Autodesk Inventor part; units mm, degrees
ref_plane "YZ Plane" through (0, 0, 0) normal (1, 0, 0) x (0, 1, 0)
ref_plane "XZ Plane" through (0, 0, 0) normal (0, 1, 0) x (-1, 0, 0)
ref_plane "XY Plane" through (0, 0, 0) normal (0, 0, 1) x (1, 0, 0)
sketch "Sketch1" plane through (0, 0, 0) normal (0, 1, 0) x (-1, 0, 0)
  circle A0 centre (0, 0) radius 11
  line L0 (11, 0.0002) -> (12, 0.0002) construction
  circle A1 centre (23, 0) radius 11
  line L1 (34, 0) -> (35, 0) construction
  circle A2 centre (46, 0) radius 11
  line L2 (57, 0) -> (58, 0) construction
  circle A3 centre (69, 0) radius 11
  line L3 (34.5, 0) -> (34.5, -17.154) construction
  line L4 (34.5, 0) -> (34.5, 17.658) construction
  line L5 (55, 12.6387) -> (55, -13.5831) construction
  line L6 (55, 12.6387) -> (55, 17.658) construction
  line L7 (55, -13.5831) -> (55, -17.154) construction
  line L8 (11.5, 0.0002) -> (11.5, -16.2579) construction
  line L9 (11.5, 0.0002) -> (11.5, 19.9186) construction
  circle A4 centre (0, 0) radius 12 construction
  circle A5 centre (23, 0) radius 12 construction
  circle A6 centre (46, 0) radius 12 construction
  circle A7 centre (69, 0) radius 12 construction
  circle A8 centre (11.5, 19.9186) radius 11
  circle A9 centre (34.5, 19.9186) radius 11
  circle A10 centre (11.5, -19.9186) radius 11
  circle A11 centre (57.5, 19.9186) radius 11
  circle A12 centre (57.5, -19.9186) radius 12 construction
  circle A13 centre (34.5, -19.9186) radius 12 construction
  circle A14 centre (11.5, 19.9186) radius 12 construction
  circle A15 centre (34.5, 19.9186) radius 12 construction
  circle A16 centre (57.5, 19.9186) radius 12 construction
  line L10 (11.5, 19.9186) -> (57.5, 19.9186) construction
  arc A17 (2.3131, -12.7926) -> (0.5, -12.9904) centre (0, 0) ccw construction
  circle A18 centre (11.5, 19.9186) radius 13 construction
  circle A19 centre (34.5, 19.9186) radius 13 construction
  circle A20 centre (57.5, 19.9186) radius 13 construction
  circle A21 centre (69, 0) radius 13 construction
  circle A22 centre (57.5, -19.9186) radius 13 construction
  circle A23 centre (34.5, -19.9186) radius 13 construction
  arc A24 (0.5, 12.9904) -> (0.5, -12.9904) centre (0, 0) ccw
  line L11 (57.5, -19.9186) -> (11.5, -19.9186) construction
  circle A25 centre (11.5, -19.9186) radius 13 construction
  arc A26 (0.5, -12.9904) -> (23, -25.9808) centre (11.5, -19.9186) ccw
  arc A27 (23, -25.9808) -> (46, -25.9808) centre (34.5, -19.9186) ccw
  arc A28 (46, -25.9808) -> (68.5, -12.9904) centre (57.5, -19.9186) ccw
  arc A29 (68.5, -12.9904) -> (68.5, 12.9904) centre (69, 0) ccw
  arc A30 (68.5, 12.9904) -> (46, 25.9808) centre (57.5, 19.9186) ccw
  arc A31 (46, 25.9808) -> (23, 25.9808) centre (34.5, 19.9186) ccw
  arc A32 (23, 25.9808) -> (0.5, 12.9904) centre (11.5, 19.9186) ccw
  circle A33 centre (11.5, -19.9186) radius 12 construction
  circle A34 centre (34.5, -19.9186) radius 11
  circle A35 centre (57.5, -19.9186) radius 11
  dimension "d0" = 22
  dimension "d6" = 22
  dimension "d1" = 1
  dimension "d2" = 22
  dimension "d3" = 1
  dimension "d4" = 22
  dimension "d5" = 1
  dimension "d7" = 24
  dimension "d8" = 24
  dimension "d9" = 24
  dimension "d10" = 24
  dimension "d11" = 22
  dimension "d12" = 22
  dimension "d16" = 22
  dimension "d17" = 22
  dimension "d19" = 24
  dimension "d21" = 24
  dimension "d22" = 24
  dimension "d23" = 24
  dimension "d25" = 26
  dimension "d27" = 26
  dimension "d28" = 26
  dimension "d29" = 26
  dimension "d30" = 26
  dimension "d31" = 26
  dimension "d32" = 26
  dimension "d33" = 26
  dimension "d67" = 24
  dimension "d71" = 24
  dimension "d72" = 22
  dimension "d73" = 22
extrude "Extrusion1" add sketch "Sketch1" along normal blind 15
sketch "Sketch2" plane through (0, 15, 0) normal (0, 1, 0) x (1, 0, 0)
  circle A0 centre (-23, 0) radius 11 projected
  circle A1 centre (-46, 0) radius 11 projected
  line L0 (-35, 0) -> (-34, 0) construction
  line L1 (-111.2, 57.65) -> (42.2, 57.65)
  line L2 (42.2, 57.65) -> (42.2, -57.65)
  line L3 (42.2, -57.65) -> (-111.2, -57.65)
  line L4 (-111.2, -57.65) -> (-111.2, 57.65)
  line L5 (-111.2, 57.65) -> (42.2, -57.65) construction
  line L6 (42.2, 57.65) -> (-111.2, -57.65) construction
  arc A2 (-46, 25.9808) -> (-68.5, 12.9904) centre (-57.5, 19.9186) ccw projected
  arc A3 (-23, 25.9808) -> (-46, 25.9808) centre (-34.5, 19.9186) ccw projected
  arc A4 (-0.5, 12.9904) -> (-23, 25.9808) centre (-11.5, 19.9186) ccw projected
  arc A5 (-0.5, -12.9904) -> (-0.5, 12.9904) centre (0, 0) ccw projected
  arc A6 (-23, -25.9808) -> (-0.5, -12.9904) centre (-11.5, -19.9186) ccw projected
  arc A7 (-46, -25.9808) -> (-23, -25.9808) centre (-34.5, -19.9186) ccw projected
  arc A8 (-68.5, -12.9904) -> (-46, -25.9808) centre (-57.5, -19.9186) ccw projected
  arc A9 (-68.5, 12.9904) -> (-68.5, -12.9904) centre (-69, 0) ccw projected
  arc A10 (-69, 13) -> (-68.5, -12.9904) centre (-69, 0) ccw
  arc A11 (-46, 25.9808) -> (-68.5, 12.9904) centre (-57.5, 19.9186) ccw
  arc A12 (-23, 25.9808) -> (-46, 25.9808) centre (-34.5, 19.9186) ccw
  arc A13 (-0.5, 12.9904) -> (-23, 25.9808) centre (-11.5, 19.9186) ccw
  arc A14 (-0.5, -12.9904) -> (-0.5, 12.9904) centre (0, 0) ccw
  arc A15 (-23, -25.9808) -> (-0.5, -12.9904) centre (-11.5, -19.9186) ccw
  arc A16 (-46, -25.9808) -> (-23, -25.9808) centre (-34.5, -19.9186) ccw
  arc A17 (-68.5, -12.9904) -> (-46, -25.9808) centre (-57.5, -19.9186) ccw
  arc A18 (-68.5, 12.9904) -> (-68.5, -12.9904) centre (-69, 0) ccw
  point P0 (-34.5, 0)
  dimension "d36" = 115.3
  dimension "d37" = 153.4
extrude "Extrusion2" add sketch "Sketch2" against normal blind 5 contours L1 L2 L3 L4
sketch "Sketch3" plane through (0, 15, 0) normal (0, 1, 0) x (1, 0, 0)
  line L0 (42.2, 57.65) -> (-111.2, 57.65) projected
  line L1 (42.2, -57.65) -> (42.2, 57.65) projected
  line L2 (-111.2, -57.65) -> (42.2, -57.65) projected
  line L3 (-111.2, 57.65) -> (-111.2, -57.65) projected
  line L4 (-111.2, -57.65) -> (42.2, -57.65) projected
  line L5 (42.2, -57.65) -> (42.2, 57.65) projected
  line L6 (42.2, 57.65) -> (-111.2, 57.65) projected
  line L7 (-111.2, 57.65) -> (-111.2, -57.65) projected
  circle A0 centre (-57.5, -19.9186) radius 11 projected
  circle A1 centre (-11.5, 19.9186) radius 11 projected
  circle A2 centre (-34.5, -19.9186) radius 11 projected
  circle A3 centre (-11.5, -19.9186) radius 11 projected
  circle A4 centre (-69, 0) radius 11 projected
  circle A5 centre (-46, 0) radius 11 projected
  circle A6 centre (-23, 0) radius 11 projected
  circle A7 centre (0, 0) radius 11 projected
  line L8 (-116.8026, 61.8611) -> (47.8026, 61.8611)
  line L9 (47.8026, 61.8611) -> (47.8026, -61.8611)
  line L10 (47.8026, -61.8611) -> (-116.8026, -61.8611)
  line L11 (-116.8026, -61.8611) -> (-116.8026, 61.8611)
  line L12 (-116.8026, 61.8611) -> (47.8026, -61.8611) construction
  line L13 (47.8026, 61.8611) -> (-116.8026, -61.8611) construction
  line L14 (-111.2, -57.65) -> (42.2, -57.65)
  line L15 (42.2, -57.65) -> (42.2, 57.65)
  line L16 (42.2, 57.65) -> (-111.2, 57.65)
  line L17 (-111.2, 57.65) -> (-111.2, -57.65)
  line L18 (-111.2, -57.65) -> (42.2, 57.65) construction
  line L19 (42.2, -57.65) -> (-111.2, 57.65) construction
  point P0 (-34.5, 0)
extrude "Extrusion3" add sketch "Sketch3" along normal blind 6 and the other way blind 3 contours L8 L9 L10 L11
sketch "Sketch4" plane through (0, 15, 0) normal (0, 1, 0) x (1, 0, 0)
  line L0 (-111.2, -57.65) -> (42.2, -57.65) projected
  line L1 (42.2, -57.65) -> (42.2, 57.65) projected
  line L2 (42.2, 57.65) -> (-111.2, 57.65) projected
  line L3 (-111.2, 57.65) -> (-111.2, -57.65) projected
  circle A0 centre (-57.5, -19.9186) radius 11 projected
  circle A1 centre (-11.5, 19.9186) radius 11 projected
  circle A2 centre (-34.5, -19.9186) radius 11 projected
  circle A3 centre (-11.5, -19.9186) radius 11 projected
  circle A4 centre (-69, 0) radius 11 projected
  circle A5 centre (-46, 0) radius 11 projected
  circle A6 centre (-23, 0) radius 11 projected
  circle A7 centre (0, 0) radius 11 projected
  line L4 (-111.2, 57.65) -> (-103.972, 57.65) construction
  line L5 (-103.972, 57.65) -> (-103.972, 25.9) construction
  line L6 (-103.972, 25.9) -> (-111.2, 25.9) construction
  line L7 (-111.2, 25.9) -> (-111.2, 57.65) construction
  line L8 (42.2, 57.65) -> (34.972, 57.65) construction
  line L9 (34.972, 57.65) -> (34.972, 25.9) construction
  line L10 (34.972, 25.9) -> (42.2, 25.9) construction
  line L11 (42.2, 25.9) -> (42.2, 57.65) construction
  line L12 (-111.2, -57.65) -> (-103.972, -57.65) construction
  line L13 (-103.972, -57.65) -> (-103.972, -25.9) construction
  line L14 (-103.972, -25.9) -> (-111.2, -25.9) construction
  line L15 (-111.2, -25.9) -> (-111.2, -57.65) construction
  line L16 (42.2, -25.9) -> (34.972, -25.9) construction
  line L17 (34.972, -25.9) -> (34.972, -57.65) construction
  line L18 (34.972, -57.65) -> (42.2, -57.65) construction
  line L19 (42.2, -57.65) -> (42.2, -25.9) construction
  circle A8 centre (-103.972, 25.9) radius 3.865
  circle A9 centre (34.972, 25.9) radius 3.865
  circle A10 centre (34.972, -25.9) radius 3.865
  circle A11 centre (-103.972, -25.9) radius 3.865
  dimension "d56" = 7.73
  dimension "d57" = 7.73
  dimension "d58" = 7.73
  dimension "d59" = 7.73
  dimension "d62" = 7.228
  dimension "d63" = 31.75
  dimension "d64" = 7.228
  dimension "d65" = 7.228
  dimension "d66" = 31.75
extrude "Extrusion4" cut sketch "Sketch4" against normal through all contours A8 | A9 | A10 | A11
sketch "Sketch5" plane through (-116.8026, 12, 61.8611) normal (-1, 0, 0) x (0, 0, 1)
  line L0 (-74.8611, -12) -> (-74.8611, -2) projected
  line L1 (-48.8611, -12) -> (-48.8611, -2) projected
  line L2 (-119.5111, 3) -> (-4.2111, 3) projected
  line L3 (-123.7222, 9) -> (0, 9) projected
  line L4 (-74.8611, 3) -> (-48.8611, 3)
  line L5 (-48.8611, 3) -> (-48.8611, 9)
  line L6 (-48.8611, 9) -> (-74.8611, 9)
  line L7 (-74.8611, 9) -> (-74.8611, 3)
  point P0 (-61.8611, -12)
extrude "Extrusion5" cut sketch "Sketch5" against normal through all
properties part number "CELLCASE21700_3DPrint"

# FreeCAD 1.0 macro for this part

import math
import FreeCAD as App
import Part
import Sketcher

V = App.Vector
Q = App.Units.Quantity


def add_polygon(sketch, points):
    """Adds a closed chain of lines whose ends are joined by coincident constraints."""
    first, n = sketch.GeometryCount, len(points)
    for a, b in zip(points, points[1:] + points[:1]):
        sketch.addGeometry(Part.LineSegment(App.Vector(*a, 0), App.Vector(*b, 0)), False)
    for i in range(n):
        sketch.addConstraint(Sketcher.Constraint("Coincident", first + i, 2, first + (i + 1) % n, 1))

doc = App.newDocument("Part")
body = doc.addObject("PartDesign::Body", "Body")

# Sketch on XZ plane
sketch1 = body.newObject("Sketcher::SketchObject", "Sketch")
sketch1.AttachmentSupport = (doc.getObject("XZ_Plane"), [""])
sketch1.MapMode = "FlatFace"
sketch1.addGeometry(Part.ArcOfCircle(Part.Circle(V(-12, 20, 0), V(0, 0, 1), 13), math.radians(-32), math.radians(152)), False)
sketch1.addGeometry(Part.ArcOfCircle(Part.Circle(V(0, 0, 0), V(0, 0, 1), 13), math.radians(-92), math.radians(92)), False)
sketch1.addGeometry(Part.ArcOfCircle(Part.Circle(V(-12, -20, 0), V(0, 0, 1), 13), math.radians(-152), math.radians(32)), False)
sketch1.addGeometry(Part.ArcOfCircle(Part.Circle(V(-34, -20, 0), V(0, 0, 1), 13), math.radians(-152), math.radians(-28)), False)
sketch1.addGeometry(Part.ArcOfCircle(Part.Circle(V(-58, -20, 0), V(0, 0, 1), 13), math.radians(148), math.radians(332)), False)
sketch1.addGeometry(Part.ArcOfCircle(Part.Circle(V(-69, 0, 0), V(0, 0, 1), 13), math.radians(88), math.radians(272)), False)
sketch1.addGeometry(Part.ArcOfCircle(Part.Circle(V(-58, 20, 0), V(0, 0, 1), 13), math.radians(28), math.radians(212)), False)
sketch1.addGeometry(Part.ArcOfCircle(Part.Circle(V(-34, 20, 0), V(0, 0, 1), 13), math.radians(28), math.radians(152)), False)
sketch1.addGeometry(Part.Circle(V(-12, -20, 0), V(0, 0, 1), 11), False)
sketch1.addGeometry(Part.Circle(V(-34, -20, 0), V(0, 0, 1), 11), False)
sketch1.addGeometry(Part.Circle(V(-58, -20, 0), V(0, 0, 1), 11), False)
sketch1.addGeometry(Part.Circle(V(0, 0, 0), V(0, 0, 1), 11), False)
sketch1.addGeometry(Part.Circle(V(-23, 0, 0), V(0, 0, 1), 11), False)
sketch1.addGeometry(Part.Circle(V(-12, 20, 0), V(0, 0, 1), 11), False)
sketch1.addGeometry(Part.Circle(V(-34, 20, 0), V(0, 0, 1), 11), False)
sketch1.addGeometry(Part.Circle(V(-46, 0, 0), V(0, 0, 1), 11), False)
sketch1.addGeometry(Part.Circle(V(-69, 0, 0), V(0, 0, 1), 11), False)
sketch1.addGeometry(Part.Circle(V(-58, 20, 0), V(0, 0, 1), 11), False)
sketch1.addConstraint(Sketcher.Constraint("Coincident", 0, 1, 1, 2))
sketch1.addConstraint(Sketcher.Constraint("Coincident", 1, 1, 2, 2))
sketch1.addConstraint(Sketcher.Constraint("Coincident", 2, 1, 3, 2))
sketch1.addConstraint(Sketcher.Constraint("Coincident", 3, 1, 4, 2))
sketch1.addConstraint(Sketcher.Constraint("Coincident", 4, 1, 5, 2))
sketch1.addConstraint(Sketcher.Constraint("Coincident", 5, 1, 6, 2))
sketch1.addConstraint(Sketcher.Constraint("Coincident", 6, 1, 7, 2))
sketch1.addConstraint(Sketcher.Constraint("Coincident", 7, 1, 0, 2))
sketch1.addConstraint(Sketcher.Constraint("Coincident", 1, 3, -1, 1))
sketch1.addConstraint(Sketcher.Constraint("Coincident", 11, 3, -1, 1))
sketch1.addConstraint(Sketcher.Constraint("Coincident", 8, 3, 2, 3))
sketch1.addConstraint(Sketcher.Constraint("Coincident", 9, 3, 3, 3))
sketch1.addConstraint(Sketcher.Constraint("Coincident", 10, 3, 4, 3))
sketch1.addConstraint(Sketcher.Constraint("Coincident", 13, 3, 0, 3))
sketch1.addConstraint(Sketcher.Constraint("Coincident", 14, 3, 7, 3))
sketch1.addConstraint(Sketcher.Constraint("Coincident", 16, 3, 5, 3))
sketch1.addConstraint(Sketcher.Constraint("Coincident", 17, 3, 6, 3))
sketch1.addConstraint(Sketcher.Constraint("Equal", 0, 1))
sketch1.addConstraint(Sketcher.Constraint("Equal", 1, 2))
sketch1.addConstraint(Sketcher.Constraint("Equal", 2, 3))
sketch1.addConstraint(Sketcher.Constraint("Equal", 3, 4))
sketch1.addConstraint(Sketcher.Constraint("Equal", 4, 5))
sketch1.addConstraint(Sketcher.Constraint("Equal", 5, 6))
sketch1.addConstraint(Sketcher.Constraint("Equal", 6, 7))
sketch1.addConstraint(Sketcher.Constraint("Equal", 8, 9))
sketch1.addConstraint(Sketcher.Constraint("Equal", 9, 10))
sketch1.addConstraint(Sketcher.Constraint("Equal", 10, 11))
sketch1.addConstraint(Sketcher.Constraint("Equal", 11, 12))
sketch1.addConstraint(Sketcher.Constraint("Equal", 12, 13))
sketch1.addConstraint(Sketcher.Constraint("Equal", 13, 14))
sketch1.addConstraint(Sketcher.Constraint("Equal", 14, 15))
sketch1.addConstraint(Sketcher.Constraint("Equal", 15, 16))
sketch1.addConstraint(Sketcher.Constraint("Equal", 16, 17))
sketch1.addConstraint(Sketcher.Constraint("Symmetric", 0, 3, 2, 3, -1))
sketch1.addConstraint(Sketcher.Constraint("Symmetric", 4, 3, 6, 3, -1))
sketch1.addConstraint(Sketcher.Constraint("Symmetric", 3, 3, 7, 3, -1))
sketch1.addConstraint(Sketcher.Constraint("PointOnObject", 5, 3, -1))
sketch1.addConstraint(Sketcher.Constraint("PointOnObject", 12, 3, -1))
sketch1.addConstraint(Sketcher.Constraint("PointOnObject", 15, 3, -1))
sketch1.addConstraint(Sketcher.Constraint("Horizontal", 2, 3, 3, 3))
sketch1.addConstraint(Sketcher.Constraint("Horizontal", 3, 3, 4, 3))
sketch1.addConstraint(Sketcher.Constraint("Horizontal", 2, 1, 3, 1))
sketch1.addConstraint(Sketcher.Constraint("Horizontal", 1, 1, 4, 1))
sketch1.addConstraint(Sketcher.Constraint("Vertical", 12, 3, 2, 1))
sketch1.addConstraint(Sketcher.Constraint("Vertical", 15, 3, 3, 1))
sketch1.addConstraint(Sketcher.Constraint("Diameter", 8, Q("22 mm")))
sketch1.addConstraint(Sketcher.Constraint("Radius", 0, Q("13 mm")))
sketch1.addConstraint(Sketcher.Constraint("DistanceX", 5, 3, -1, 1, Q("69 mm")))
sketch1.addConstraint(Sketcher.Constraint("DistanceX", 12, 3, -1, 1, Q("23 mm")))
sketch1.addConstraint(Sketcher.Constraint("DistanceX", 0, 3, 0, 1, Q("11 mm")))
pad1 = body.newObject("PartDesign::Pad", "Pad")
pad1.Profile = sketch1
pad1.Length = 15
pad1.Reversed = True

# Sketch on XZ plane
sketch2 = body.newObject("Sketcher::SketchObject", "Sketch001")
sketch2.AttachmentSupport = (doc.getObject("XZ_Plane"), [""])
sketch2.MapMode = "FlatFace"
sketch2.AttachmentOffset = App.Placement(V(0, 0, -15), App.Rotation())
add_polygon(sketch2, [(42, -58), (-111, -58), (-111, 58), (42, 58)])  # lines 0-3
sketch2.addGeometry(Part.ArcOfCircle(Part.Circle(V(-58, -20, 0), V(0, 0, 1), 13), math.radians(148), math.radians(332)), False)  # 4
sketch2.addGeometry(Part.ArcOfCircle(Part.Circle(V(-34, -20, 0), V(0, 0, 1), 13), math.radians(-152), math.radians(-28)), False)  # 5
sketch2.addGeometry(Part.ArcOfCircle(Part.Circle(V(-12, -20, 0), V(0, 0, 1), 13), math.radians(-152), math.radians(32)), False)  # 6
sketch2.addGeometry(Part.ArcOfCircle(Part.Circle(V(0, 0, 0), V(0, 0, 1), 13), math.radians(-92), math.radians(92)), False)  # 7
sketch2.addGeometry(Part.ArcOfCircle(Part.Circle(V(-12, 20, 0), V(0, 0, 1), 13), math.radians(-32), math.radians(152)), False)  # 8
sketch2.addGeometry(Part.ArcOfCircle(Part.Circle(V(-34, 20, 0), V(0, 0, 1), 13), math.radians(28), math.radians(152)), False)  # 9
sketch2.addGeometry(Part.ArcOfCircle(Part.Circle(V(-58, 20, 0), V(0, 0, 1), 13), math.radians(28), math.radians(212)), False)  # 10
sketch2.addGeometry(Part.ArcOfCircle(Part.Circle(V(-69, 0, 0), V(0, 0, 1), 13), math.radians(88), math.radians(272)), False)  # 11
sketch2.addConstraint(Sketcher.Constraint("Coincident", 4, 2, 5, 1))
sketch2.addConstraint(Sketcher.Constraint("Coincident", 5, 2, 6, 1))
sketch2.addConstraint(Sketcher.Constraint("Coincident", 6, 2, 7, 1))
sketch2.addConstraint(Sketcher.Constraint("Coincident", 7, 2, 8, 1))
sketch2.addConstraint(Sketcher.Constraint("Coincident", 8, 2, 9, 1))
sketch2.addConstraint(Sketcher.Constraint("Coincident", 9, 2, 10, 1))
sketch2.addConstraint(Sketcher.Constraint("Coincident", 10, 2, 11, 1))
sketch2.addConstraint(Sketcher.Constraint("Coincident", 11, 2, 4, 1))
sketch2.addConstraint(Sketcher.Constraint("Horizontal", 0))
sketch2.addConstraint(Sketcher.Constraint("Vertical", 1))
sketch2.addConstraint(Sketcher.Constraint("Horizontal", 2))
sketch2.addConstraint(Sketcher.Constraint("Vertical", 3))
sketch2.addConstraint(Sketcher.Constraint("Coincident", 7, 3, -1, 1))
sketch2.addConstraint(Sketcher.Constraint("Equal", 4, 5))
sketch2.addConstraint(Sketcher.Constraint("Equal", 5, 6))
sketch2.addConstraint(Sketcher.Constraint("Equal", 6, 7))
sketch2.addConstraint(Sketcher.Constraint("Equal", 7, 8))
sketch2.addConstraint(Sketcher.Constraint("Equal", 8, 9))
sketch2.addConstraint(Sketcher.Constraint("Equal", 9, 10))
sketch2.addConstraint(Sketcher.Constraint("Equal", 10, 11))
sketch2.addConstraint(Sketcher.Constraint("Symmetric", 6, 3, 8, 3, -1))
sketch2.addConstraint(Sketcher.Constraint("Symmetric", 5, 3, 9, 3, -1))
sketch2.addConstraint(Sketcher.Constraint("Symmetric", 4, 3, 10, 3, -1))
sketch2.addConstraint(Sketcher.Constraint("PointOnObject", 11, 3, -1))
sketch2.addConstraint(Sketcher.Constraint("Horizontal", 4, 3, 5, 3))
sketch2.addConstraint(Sketcher.Constraint("Horizontal", 5, 3, 6, 3))
sketch2.addConstraint(Sketcher.Constraint("Horizontal", 4, 2, 5, 2))
sketch2.addConstraint(Sketcher.Constraint("Horizontal", 7, 2, 10, 2))
sketch2.addConstraint(Sketcher.Constraint("DistanceX", 0, 2, 0, 1, Q("153.4 mm")))
sketch2.addConstraint(Sketcher.Constraint("DistanceY", 1, 1, 1, 2, Q("115.3 mm")))
sketch2.addConstraint(Sketcher.Constraint("Radius", 4, Q("13 mm")))
sketch2.addConstraint(Sketcher.Constraint("DistanceX", 11, 3, -1, 1, Q("69 mm")))
sketch2.addConstraint(Sketcher.Constraint("DistanceX", 4, 2, -1, 1, Q("46 mm")))
sketch2.addConstraint(Sketcher.Constraint("DistanceX", 6, 3, 6, 2, Q("11 mm")))
sketch2.addConstraint(Sketcher.Constraint("DistanceX", 0, 2, -1, 1, Q("111.2 mm")))
sketch2.addConstraint(Sketcher.Constraint("DistanceY", 0, 2, -1, 1, Q("57.65 mm")))
pad2 = body.newObject("PartDesign::Pad", "Pad001")
pad2.Profile = sketch2
pad2.Length = 5

# Sketch on XZ plane
sketch3 = body.newObject("Sketcher::SketchObject", "Sketch002")
sketch3.AttachmentSupport = (doc.getObject("XZ_Plane"), [""])
sketch3.MapMode = "FlatFace"
sketch3.AttachmentOffset = App.Placement(V(0, 0, -15), App.Rotation())
add_polygon(sketch3, [(48, -62), (-117, -62), (-117, 62), (48, 62)])  # lines 0-3
add_polygon(sketch3, [(-111, -58), (42, -58), (42, 58), (-111, 58)])  # lines 4-7
sketch3.addConstraint(Sketcher.Constraint("Horizontal", 0))
sketch3.addConstraint(Sketcher.Constraint("Vertical", 1))
sketch3.addConstraint(Sketcher.Constraint("Horizontal", 2))
sketch3.addConstraint(Sketcher.Constraint("Vertical", 3))
sketch3.addConstraint(Sketcher.Constraint("Horizontal", 4))
sketch3.addConstraint(Sketcher.Constraint("Vertical", 5))
sketch3.addConstraint(Sketcher.Constraint("Horizontal", 6))
sketch3.addConstraint(Sketcher.Constraint("Vertical", 7))
sketch3.addConstraint(Sketcher.Constraint("DistanceX", 4, 1, 4, 2, Q("153.4 mm")))
sketch3.addConstraint(Sketcher.Constraint("DistanceY", 5, 1, 5, 2, Q("115.3 mm")))
sketch3.addConstraint(Sketcher.Constraint("DistanceX", -1, 1, 4, 2, Q("42.2 mm")))
sketch3.addConstraint(Sketcher.Constraint("DistanceY", 4, 2, -1, 1, Q("57.65 mm")))
sketch3.addConstraint(Sketcher.Constraint("DistanceX", 0, 2, 0, 1, Q("164.6052 mm")))
sketch3.addConstraint(Sketcher.Constraint("DistanceY", 1, 1, 1, 2, Q("123.7222 mm")))
sketch3.addConstraint(Sketcher.Constraint("DistanceY", 0, 2, -1, 1, Q("61.861 mm")))
sketch3.addConstraint(Sketcher.Constraint("DistanceX", 0, 2, -1, 1, Q("116.8026 mm")))
pad3 = body.newObject("PartDesign::Pad", "Pad002")
pad3.Profile = sketch3
pad3.Type = "TwoLengths"
pad3.Length = 6
pad3.Length2 = 3
pad3.Reversed = True

# Sketch on XZ plane
sketch4 = body.newObject("Sketcher::SketchObject", "Sketch003")
sketch4.AttachmentSupport = (doc.getObject("XZ_Plane"), [""])
sketch4.MapMode = "FlatFace"
sketch4.AttachmentOffset = App.Placement(V(0, 0, -15), App.Rotation())
sketch4.addGeometry(Part.Circle(V(-104, -25.9, 0), V(0, 0, 1), 3.9), False)
sketch4.addGeometry(Part.Circle(V(35, -25.9, 0), V(0, 0, 1), 3.9), False)
sketch4.addGeometry(Part.Circle(V(35, 25.9, 0), V(0, 0, 1), 3.9), False)
sketch4.addGeometry(Part.Circle(V(-104, 25.9, 0), V(0, 0, 1), 3.9), False)
sketch4.addConstraint(Sketcher.Constraint("Equal", 0, 1))
sketch4.addConstraint(Sketcher.Constraint("Equal", 1, 2))
sketch4.addConstraint(Sketcher.Constraint("Equal", 2, 3))
sketch4.addConstraint(Sketcher.Constraint("Symmetric", 1, 3, 2, 3, -1))
sketch4.addConstraint(Sketcher.Constraint("Symmetric", 0, 3, 3, 3, -1))
sketch4.addConstraint(Sketcher.Constraint("Horizontal", 0, 3, 1, 3))
sketch4.addConstraint(Sketcher.Constraint("Diameter", 0, Q("7.73 mm")))
sketch4.addConstraint(Sketcher.Constraint("DistanceY", 0, 3, -1, 1, Q("25.9 mm")))
sketch4.addConstraint(Sketcher.Constraint("DistanceX", 0, 3, -1, 1, Q("103.972 mm")))
sketch4.addConstraint(Sketcher.Constraint("DistanceX", -1, 1, 1, 3, Q("34.972 mm")))
pocket1 = body.newObject("PartDesign::Pocket", "Pocket")
pocket1.Profile = sketch4
pocket1.Type = "ThroughAll"
pocket1.Reversed = True

# Sketch on YZ plane
sketch5 = body.newObject("Sketcher::SketchObject", "Sketch004")
sketch5.AttachmentSupport = (doc.getObject("YZ_Plane"), [""])
sketch5.MapMode = "FlatFace"
sketch5.AttachmentOffset = App.Placement(V(0, 0, -116.8026), App.Rotation())
add_polygon(sketch5, [(21, -13), (15, -13), (15, 13), (21, 13)])  # lines 0-3
sketch5.addConstraint(Sketcher.Constraint("Horizontal", 0))
sketch5.addConstraint(Sketcher.Constraint("Vertical", 1))
sketch5.addConstraint(Sketcher.Constraint("Horizontal", 2))
sketch5.addConstraint(Sketcher.Constraint("Vertical", 3))
sketch5.addConstraint(Sketcher.Constraint("DistanceX", 0, 2, 0, 1, Q("6 mm")))
sketch5.addConstraint(Sketcher.Constraint("DistanceY", 1, 1, 1, 2, Q("26 mm")))
sketch5.addConstraint(Sketcher.Constraint("DistanceX", -1, 1, 0, 2, Q("15 mm")))
sketch5.addConstraint(Sketcher.Constraint("DistanceY", 0, 2, -1, 1, Q("13 mm")))
pocket2 = body.newObject("PartDesign::Pocket", "Pocket001")
pocket2.Profile = sketch5
pocket2.Type = "ThroughAll"
pocket2.Reversed = True

doc.recompute()
